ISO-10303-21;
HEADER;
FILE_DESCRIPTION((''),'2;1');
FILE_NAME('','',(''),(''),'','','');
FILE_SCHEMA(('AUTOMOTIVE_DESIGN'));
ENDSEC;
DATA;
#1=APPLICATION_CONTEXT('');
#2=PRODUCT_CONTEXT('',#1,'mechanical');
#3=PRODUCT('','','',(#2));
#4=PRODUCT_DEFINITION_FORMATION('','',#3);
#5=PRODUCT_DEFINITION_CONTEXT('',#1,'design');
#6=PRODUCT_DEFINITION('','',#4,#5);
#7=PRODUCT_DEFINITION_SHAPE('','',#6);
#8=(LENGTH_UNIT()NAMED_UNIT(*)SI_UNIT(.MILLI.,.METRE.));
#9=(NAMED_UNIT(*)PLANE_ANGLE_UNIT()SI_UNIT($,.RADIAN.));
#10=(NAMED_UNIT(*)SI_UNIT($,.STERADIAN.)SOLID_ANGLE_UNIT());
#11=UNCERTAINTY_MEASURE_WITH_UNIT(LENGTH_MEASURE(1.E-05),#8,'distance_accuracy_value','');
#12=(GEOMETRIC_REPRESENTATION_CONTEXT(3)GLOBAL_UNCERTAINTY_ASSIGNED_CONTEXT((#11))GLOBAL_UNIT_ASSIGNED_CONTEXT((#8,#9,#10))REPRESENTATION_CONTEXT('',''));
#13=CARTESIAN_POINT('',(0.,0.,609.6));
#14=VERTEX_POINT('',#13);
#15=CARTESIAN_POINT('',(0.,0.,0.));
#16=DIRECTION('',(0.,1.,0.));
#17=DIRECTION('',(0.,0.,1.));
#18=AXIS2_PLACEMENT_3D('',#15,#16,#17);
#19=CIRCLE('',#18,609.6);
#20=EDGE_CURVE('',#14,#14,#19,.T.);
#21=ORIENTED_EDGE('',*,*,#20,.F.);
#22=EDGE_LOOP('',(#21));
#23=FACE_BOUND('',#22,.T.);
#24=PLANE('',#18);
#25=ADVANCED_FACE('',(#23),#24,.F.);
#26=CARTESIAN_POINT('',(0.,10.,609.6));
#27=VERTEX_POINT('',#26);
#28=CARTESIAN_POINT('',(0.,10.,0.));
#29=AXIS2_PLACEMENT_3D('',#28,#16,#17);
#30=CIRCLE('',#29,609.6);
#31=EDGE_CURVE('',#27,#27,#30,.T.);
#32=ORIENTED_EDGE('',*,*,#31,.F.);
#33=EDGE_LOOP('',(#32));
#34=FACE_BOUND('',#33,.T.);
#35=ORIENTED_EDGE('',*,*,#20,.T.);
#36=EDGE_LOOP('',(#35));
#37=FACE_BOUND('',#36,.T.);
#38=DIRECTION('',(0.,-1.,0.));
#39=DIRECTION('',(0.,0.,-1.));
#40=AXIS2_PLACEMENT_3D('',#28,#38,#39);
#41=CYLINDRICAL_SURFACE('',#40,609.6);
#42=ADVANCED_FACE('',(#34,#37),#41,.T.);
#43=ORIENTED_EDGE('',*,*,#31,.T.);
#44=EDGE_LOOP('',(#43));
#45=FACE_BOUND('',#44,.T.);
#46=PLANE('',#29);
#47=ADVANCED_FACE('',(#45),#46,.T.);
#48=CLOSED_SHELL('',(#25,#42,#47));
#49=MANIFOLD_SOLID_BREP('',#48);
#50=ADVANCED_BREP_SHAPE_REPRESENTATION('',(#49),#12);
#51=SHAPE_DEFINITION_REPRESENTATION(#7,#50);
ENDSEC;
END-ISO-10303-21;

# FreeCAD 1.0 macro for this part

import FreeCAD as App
import Part
import Sketcher

V = App.Vector

doc = App.newDocument("Part")
params = doc.addObject("Spreadsheet::Sheet", "Params")
for row, (alias, value) in enumerate([
    ("sketch1_diameter", "1219.2 mm"),
    ("pad1_length", "10 mm"),
], start=1):
    params.set(f"A{row}", alias)
    params.set(f"B{row}", "=" + value)
    params.setAlias(f"B{row}", alias)

body = doc.addObject("PartDesign::Body", "Body")

# Sketch on XZ plane
sketch1 = body.newObject("Sketcher::SketchObject", "Sketch")
sketch1.AttachmentSupport = (doc.getObject("XZ_Plane"), [""])
sketch1.MapMode = "FlatFace"
sketch1.addGeometry(Part.Circle(V(0, 0, 0), V(0, 0, 1), 609.6), False)
sketch1.addConstraint([
    Sketcher.Constraint("Coincident", 0, 3, -1, 1),
    Sketcher.Constraint("Diameter", 0, 1219.2),
])
sketch1.setExpression("Constraints[1]", "Params.sketch1_diameter")
pad1 = body.newObject("PartDesign::Pad", "Pad")
pad1.Profile = sketch1
pad1.setExpression("Length", "Params.pad1_length")
pad1.Reversed = True

doc.recompute()
